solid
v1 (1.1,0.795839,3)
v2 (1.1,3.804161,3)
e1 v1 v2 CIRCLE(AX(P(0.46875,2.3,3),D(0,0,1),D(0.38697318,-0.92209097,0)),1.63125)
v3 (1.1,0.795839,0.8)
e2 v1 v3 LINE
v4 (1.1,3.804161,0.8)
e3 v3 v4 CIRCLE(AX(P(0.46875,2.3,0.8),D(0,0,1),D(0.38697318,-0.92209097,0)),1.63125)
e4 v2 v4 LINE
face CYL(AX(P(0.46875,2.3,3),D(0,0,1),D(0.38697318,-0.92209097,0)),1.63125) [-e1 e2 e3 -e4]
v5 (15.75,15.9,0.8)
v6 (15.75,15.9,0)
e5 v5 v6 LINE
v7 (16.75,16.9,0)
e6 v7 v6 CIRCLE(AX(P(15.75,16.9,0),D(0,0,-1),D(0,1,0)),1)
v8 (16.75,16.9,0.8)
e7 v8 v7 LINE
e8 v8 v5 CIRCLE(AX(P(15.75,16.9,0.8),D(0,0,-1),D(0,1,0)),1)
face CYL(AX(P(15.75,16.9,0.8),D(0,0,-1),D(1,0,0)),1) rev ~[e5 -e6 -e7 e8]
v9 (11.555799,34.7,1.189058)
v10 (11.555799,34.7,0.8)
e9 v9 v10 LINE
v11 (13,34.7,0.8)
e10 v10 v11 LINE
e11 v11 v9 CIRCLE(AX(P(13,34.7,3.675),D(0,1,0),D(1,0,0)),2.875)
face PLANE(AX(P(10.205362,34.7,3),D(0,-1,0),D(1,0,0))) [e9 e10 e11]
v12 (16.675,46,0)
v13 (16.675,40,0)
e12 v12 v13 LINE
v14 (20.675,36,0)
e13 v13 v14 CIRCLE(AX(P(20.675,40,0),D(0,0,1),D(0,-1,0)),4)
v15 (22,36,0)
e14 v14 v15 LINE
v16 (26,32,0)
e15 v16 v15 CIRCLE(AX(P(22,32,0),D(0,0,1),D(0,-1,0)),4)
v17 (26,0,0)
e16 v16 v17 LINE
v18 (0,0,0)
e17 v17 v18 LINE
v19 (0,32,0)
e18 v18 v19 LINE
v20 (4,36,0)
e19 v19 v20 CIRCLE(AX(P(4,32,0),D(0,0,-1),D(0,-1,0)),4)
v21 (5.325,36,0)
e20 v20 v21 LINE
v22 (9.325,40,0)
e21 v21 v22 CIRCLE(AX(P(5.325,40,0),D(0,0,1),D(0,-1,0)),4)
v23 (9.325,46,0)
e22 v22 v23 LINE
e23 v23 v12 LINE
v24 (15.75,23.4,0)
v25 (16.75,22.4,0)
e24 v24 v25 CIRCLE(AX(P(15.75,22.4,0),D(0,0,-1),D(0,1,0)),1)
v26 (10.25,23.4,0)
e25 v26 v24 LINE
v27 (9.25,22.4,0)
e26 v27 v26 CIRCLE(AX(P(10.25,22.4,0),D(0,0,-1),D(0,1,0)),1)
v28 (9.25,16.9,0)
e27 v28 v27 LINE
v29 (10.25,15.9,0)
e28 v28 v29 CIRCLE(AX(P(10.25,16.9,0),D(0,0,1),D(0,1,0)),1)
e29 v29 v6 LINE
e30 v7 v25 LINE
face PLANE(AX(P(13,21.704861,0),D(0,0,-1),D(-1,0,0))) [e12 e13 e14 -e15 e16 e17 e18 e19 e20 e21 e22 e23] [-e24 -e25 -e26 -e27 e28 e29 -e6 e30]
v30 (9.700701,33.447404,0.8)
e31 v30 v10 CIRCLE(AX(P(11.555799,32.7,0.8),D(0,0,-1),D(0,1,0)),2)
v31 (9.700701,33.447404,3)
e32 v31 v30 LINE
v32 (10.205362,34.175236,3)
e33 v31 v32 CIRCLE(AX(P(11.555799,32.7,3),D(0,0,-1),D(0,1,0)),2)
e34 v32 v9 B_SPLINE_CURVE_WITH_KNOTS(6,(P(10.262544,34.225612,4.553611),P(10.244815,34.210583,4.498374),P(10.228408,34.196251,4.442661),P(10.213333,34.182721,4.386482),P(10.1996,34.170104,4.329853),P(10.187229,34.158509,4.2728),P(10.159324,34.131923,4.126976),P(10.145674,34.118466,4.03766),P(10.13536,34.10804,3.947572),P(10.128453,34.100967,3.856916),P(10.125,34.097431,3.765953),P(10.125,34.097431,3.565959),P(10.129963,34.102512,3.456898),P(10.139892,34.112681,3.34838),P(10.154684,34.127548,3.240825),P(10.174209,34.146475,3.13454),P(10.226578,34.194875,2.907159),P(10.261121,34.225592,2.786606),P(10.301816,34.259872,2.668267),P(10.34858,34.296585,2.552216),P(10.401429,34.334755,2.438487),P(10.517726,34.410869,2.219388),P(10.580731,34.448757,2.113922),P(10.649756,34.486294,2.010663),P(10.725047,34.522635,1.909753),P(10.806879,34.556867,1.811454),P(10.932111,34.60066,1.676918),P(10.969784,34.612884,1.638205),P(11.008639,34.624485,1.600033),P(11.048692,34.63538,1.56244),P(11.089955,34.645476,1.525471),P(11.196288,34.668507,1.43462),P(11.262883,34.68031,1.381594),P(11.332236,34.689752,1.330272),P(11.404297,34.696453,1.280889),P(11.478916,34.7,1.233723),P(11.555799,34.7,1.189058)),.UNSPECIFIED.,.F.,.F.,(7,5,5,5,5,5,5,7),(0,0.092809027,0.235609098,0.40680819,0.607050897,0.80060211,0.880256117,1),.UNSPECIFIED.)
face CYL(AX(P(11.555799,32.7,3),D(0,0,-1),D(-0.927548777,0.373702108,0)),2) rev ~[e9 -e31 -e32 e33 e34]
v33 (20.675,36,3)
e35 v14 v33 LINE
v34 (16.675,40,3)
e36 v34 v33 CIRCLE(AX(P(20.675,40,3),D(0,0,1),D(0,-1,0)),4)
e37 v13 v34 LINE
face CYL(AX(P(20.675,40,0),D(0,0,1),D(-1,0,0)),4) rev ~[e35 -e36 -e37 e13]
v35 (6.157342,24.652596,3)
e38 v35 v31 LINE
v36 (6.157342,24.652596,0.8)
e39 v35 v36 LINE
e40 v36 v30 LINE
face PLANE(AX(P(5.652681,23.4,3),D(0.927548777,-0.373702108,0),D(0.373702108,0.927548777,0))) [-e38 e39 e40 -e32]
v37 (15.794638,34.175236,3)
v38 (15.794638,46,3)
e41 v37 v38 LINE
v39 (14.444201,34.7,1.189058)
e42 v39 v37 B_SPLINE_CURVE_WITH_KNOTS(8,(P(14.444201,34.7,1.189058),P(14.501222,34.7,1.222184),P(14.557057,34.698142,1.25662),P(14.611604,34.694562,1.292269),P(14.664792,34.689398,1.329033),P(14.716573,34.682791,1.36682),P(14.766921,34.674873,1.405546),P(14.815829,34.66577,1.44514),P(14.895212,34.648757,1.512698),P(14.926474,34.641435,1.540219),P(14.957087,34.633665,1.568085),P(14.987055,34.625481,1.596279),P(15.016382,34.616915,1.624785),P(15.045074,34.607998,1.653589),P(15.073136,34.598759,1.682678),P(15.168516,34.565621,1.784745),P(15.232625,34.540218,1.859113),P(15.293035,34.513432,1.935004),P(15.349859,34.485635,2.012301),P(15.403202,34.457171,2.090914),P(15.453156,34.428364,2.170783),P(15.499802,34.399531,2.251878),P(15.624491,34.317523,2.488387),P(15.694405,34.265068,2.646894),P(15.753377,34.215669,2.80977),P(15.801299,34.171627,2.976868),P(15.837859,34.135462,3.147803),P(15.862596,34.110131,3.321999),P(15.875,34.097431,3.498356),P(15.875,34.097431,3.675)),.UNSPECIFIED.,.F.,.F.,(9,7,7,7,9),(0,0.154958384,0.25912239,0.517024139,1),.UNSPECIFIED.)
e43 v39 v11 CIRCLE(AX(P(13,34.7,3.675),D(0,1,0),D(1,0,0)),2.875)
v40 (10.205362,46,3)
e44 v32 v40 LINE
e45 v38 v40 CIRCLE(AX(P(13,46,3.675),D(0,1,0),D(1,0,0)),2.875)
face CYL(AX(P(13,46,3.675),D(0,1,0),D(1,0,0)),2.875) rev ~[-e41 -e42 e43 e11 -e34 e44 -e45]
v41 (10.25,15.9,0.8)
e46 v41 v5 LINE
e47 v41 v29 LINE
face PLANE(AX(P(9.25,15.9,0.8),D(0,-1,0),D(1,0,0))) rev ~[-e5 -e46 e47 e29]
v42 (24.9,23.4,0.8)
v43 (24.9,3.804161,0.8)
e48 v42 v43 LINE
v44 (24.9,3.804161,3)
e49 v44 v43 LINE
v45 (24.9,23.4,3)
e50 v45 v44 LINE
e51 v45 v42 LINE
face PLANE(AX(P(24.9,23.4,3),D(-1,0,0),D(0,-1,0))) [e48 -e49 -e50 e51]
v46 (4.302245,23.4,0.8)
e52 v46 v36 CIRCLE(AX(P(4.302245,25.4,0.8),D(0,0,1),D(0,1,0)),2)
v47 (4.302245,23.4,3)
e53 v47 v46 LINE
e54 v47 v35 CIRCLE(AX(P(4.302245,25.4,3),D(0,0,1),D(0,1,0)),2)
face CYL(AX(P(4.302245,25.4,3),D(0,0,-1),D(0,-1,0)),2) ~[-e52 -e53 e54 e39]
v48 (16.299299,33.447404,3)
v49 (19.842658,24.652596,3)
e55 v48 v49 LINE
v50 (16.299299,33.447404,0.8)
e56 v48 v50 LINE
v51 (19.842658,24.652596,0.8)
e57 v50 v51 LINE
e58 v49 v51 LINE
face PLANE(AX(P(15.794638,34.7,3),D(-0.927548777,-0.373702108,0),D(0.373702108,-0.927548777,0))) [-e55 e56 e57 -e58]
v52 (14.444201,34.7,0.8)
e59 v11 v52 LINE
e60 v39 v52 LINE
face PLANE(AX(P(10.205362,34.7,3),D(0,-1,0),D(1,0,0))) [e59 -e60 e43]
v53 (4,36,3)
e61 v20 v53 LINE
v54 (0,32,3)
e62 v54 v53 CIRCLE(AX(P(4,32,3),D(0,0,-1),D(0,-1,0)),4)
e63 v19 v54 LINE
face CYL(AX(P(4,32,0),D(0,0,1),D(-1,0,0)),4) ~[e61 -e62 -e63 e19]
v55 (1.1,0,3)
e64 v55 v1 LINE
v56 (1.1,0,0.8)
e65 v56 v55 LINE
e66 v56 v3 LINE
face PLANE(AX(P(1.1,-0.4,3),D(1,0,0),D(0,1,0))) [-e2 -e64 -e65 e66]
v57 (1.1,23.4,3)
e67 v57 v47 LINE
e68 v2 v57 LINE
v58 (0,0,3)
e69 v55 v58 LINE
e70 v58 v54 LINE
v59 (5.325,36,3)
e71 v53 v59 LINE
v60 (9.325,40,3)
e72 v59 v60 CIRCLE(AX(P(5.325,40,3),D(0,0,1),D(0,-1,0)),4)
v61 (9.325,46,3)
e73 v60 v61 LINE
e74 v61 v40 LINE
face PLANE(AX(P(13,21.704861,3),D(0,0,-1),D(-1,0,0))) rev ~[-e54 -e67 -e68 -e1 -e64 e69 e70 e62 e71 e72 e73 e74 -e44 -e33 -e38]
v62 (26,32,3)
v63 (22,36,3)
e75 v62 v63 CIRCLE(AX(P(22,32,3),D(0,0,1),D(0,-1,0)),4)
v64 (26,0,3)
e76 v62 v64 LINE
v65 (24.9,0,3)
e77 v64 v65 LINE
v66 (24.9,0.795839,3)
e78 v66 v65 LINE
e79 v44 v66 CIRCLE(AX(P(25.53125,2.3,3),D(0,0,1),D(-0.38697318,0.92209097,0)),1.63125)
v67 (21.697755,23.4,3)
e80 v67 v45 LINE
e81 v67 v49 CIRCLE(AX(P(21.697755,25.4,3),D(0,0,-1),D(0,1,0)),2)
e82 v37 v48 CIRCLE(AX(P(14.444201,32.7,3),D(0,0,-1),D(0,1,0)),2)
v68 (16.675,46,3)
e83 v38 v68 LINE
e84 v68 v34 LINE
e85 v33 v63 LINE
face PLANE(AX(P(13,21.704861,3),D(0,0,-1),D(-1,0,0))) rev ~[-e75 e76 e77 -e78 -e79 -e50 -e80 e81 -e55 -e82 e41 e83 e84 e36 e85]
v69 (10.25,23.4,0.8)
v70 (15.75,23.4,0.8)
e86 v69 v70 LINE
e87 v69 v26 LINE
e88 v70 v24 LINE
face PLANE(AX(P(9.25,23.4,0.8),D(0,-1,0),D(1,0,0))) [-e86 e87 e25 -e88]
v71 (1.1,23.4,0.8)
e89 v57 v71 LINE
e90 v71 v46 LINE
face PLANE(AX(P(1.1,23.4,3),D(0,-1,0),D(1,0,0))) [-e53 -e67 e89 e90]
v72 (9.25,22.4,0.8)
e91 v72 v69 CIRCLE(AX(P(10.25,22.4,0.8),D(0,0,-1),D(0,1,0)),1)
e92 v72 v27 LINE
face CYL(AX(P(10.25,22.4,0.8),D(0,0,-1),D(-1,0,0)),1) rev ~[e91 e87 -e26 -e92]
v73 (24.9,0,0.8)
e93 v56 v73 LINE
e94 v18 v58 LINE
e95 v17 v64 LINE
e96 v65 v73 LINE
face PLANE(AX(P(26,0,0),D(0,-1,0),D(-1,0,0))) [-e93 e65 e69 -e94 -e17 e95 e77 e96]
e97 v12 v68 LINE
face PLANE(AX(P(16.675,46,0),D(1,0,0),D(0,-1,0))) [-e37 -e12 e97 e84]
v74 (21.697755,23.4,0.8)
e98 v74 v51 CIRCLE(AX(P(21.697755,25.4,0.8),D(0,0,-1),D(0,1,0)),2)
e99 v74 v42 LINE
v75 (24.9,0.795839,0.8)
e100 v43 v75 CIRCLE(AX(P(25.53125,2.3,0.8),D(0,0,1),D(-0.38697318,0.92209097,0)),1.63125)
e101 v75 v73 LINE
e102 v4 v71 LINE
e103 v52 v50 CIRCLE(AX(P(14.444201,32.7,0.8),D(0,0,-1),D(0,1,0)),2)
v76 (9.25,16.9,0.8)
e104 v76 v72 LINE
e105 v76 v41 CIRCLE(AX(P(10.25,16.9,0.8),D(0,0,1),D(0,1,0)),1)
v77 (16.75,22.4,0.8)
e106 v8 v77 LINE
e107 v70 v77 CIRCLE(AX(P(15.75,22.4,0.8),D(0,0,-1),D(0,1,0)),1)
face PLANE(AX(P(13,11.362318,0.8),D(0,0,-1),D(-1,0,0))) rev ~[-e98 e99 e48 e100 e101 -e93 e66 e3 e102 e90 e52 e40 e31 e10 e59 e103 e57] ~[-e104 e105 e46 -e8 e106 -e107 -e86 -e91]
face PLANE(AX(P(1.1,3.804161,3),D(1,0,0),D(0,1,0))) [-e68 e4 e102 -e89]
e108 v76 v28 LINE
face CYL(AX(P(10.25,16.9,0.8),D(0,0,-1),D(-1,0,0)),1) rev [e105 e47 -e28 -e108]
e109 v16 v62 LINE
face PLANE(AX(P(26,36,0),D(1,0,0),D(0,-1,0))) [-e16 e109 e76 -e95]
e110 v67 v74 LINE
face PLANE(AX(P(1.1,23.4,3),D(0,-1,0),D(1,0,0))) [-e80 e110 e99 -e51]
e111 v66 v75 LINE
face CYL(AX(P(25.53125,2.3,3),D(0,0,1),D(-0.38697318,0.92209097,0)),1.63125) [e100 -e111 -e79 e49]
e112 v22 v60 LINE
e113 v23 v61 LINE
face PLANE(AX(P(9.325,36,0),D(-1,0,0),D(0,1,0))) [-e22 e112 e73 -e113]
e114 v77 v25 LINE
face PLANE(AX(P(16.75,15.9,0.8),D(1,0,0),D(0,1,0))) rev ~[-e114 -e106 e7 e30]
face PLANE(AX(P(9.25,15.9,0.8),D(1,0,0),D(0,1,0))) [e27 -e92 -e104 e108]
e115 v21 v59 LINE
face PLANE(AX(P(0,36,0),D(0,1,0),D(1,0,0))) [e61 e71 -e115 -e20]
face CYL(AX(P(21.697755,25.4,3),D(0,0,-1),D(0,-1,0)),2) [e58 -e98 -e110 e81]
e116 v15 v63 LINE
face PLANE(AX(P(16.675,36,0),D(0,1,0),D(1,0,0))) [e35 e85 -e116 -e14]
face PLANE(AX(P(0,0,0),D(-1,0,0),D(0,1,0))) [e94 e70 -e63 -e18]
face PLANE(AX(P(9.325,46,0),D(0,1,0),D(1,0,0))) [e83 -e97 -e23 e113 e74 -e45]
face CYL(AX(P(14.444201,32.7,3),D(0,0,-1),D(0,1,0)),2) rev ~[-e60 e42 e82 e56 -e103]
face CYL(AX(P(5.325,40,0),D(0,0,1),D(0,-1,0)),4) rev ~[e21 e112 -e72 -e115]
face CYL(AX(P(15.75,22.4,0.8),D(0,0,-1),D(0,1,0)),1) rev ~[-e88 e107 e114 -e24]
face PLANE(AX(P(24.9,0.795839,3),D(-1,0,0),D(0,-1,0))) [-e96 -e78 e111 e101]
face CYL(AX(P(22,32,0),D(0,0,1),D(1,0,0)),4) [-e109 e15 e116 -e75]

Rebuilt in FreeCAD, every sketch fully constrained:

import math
import FreeCAD as App
import Part
import Sketcher
Q = App.Units.Quantity


def edges_at(feature, points):
    """Names of the edges that pass closest to the given points."""
    edges = feature.Shape.Edges
    near = lambda p: min(range(len(edges)), key=lambda i: edges[i].distToShape(Part.Vertex(*p))[0])
    return sorted({f"Edge{near(p) + 1}" for p in points})

doc = App.newDocument("Part")
body = doc.addObject("PartDesign::Body", "Body")

sketch1 = body.newObject("Sketcher::SketchObject", "Sketch")
sketch1.AttachmentSupport = (doc.getObject("XY_Plane"), [""])
sketch1.MapMode = "FlatFace"
sketch1.addGeometry([
    Part.LineSegment(App.Vector(9, 36, 0), App.Vector(0, 36, 0)),
    Part.LineSegment(App.Vector(0, 36, 0), App.Vector(0, 0, 0)),
    Part.LineSegment(App.Vector(0, 0, 0), App.Vector(26, 0, 0)),
    Part.LineSegment(App.Vector(26, 0, 0), App.Vector(26, 36, 0)),
    Part.LineSegment(App.Vector(26, 36, 0), App.Vector(17, 36, 0)),
    Part.LineSegment(App.Vector(17, 36, 0), App.Vector(17, 46, 0)),
    Part.LineSegment(App.Vector(17, 46, 0), App.Vector(9, 46, 0)),
    Part.LineSegment(App.Vector(9, 46, 0), App.Vector(9, 36, 0)),
], False)
sketch1.addConstraint([
    Sketcher.Constraint("Coincident", 0, 2, 1, 1),
    Sketcher.Constraint("Coincident", 1, 2, 2, 1),
    Sketcher.Constraint("Coincident", 2, 2, 3, 1),
    Sketcher.Constraint("Coincident", 3, 2, 4, 1),
    Sketcher.Constraint("Coincident", 4, 2, 5, 1),
    Sketcher.Constraint("Coincident", 5, 2, 6, 1),
    Sketcher.Constraint("Coincident", 6, 2, 7, 1),
    Sketcher.Constraint("Coincident", 7, 2, 0, 1),
    Sketcher.Constraint("Horizontal", 0),
    Sketcher.Constraint("Vertical", 1),
    Sketcher.Constraint("Horizontal", 2),
    Sketcher.Constraint("Vertical", 3),
    Sketcher.Constraint("Horizontal", 4),
    Sketcher.Constraint("Vertical", 5),
    Sketcher.Constraint("Horizontal", 6),
    Sketcher.Constraint("Vertical", 7),
    Sketcher.Constraint("Coincident", 1, 2, -1, 1),
    Sketcher.Constraint("Horizontal", 0, 2, 3, 2),
    Sketcher.Constraint("Equal", 0, 4),
    Sketcher.Constraint("DistanceX", 2, 1, 2, 2, Q("26 mm")),
    Sketcher.Constraint("DistanceY", 1, 2, 1, 1, Q("36 mm")),
    Sketcher.Constraint("DistanceY", 5, 1, 5, 2, Q("10 mm")),
    Sketcher.Constraint("DistanceX", 6, 2, 6, 1, Q("7.35 mm")),
])
pad1 = body.newObject("PartDesign::Pad", "Pad")
pad1.Profile = sketch1
pad1.Length = 3

sketch2 = body.newObject("Sketcher::SketchObject", "Sketch001")
sketch2.AttachmentSupport = (doc.getObject("XY_Plane"), [""])
sketch2.MapMode = "FlatFace"
sketch2.AttachmentOffset = App.Placement(App.Vector(0, 0, 3), App.Rotation())
sketch2.addGeometry([
    Part.LineSegment(App.Vector(1.1, 0.8, 0), App.Vector(1.1, -0.4, 0)),
    Part.LineSegment(App.Vector(1.1, -0.4, 0), App.Vector(24.9, -0.4, 0)),
    Part.LineSegment(App.Vector(24.9, -0.4, 0), App.Vector(24.9, 0.8, 0)),
    Part.ArcOfCircle(Part.Circle(App.Vector(25.5, 2.3, 0), App.Vector(0, 0, 1), 1.6), math.radians(113), math.radians(247)),
    Part.LineSegment(App.Vector(24.9, 3.8, 0), App.Vector(24.9, 23.4, 0)),
    Part.LineSegment(App.Vector(24.9, 23.4, 0), App.Vector(1.1, 23.4, 0)),
    Part.LineSegment(App.Vector(1.1, 23.4, 0), App.Vector(1.1, 3.8, 0)),
    Part.ArcOfCircle(Part.Circle(App.Vector(0.5, 2.3, 0), App.Vector(0, 0, 1), 1.6), math.radians(-67), math.radians(67)),
], False)
sketch2.addConstraint([
    Sketcher.Constraint("Coincident", 0, 2, 1, 1),
    Sketcher.Constraint("Coincident", 1, 2, 2, 1),
    Sketcher.Constraint("Coincident", 2, 2, 3, 2),
    Sketcher.Constraint("Coincident", 3, 1, 4, 1),
    Sketcher.Constraint("Coincident", 4, 2, 5, 1),
    Sketcher.Constraint("Coincident", 5, 2, 6, 1),
    Sketcher.Constraint("Coincident", 6, 2, 7, 2),
    Sketcher.Constraint("Coincident", 7, 1, 0, 1),
    Sketcher.Constraint("Vertical", 0),
    Sketcher.Constraint("Horizontal", 1),
    Sketcher.Constraint("Vertical", 2),
    Sketcher.Constraint("Vertical", 4),
    Sketcher.Constraint("Horizontal", 5),
    Sketcher.Constraint("Vertical", 6),
    Sketcher.Constraint("Equal", 3, 7),
    Sketcher.Constraint("Horizontal", 3, 3, 7, 3),
    Sketcher.Constraint("Horizontal", 3, 1, 6, 2),
    Sketcher.Constraint("Horizontal", 2, 2, 7, 1),
    Sketcher.Constraint("Vertical", 2, 2, 3, 1),
    Sketcher.Constraint("DistanceX", 1, 1, 1, 2, Q("23.8 mm")),
    Sketcher.Constraint("DistanceY", -1, 1, 3, 3, Q("2.3 mm")),
    Sketcher.Constraint("DistanceX", -1, 1, 0, 2, Q("1.1 mm")),
    Sketcher.Constraint("DistanceY", 0, 2, -1, 1, Q("0.4 mm")),
    Sketcher.Constraint("DistanceY", -1, 1, 4, 2, Q("23.4 mm")),
    Sketcher.Constraint("Radius", 3, Q("1.63125 mm")),
    Sketcher.Constraint("DistanceY", 0, 2, 0, 1, Q("1.195839 mm")),
])
pocket1 = body.newObject("PartDesign::Pocket", "Pocket")
pocket1.Profile = sketch2
pocket1.Length = 2.2

sketch3 = body.newObject("Sketcher::SketchObject", "Sketch002")
sketch3.AttachmentSupport = (doc.getObject("XZ_Plane"), [""])
sketch3.MapMode = "FlatFace"
sketch3.AttachmentOffset = App.Placement(App.Vector(0, 0, -46), App.Rotation())
sketch3.addGeometry(Part.Circle(App.Vector(13, 3.7, 0), App.Vector(0, 0, 1), 2.9), False)
sketch3.addConstraint([
    Sketcher.Constraint("Diameter", 0, Q("5.75 mm")),
    Sketcher.Constraint("DistanceX", -1, 1, 0, 3, Q("13 mm")),
    Sketcher.Constraint("DistanceY", -1, 1, 0, 3, Q("3.675 mm")),
])
pocket2 = body.newObject("PartDesign::Pocket", "Pocket001")
pocket2.Profile = sketch3
pocket2.Length = 22.6
pocket2.Reversed = True

sketch4 = body.newObject("Sketcher::SketchObject", "Sketch003")
sketch4.AttachmentSupport = (doc.getObject("XY_Plane"), [""])
sketch4.MapMode = "FlatFace"
sketch4.AttachmentOffset = App.Placement(App.Vector(0, 0, 3), App.Rotation())
sketch4.addGeometry([
    Part.LineSegment(App.Vector(10, 35, 0), App.Vector(6, 23, 0)),
    Part.LineSegment(App.Vector(6, 23, 0), App.Vector(20, 23, 0)),
    Part.LineSegment(App.Vector(20, 23, 0), App.Vector(16, 35, 0)),
    Part.LineSegment(App.Vector(16, 35, 0), App.Vector(10, 35, 0)),
], False)
sketch4.addConstraint([
    Sketcher.Constraint("Coincident", 0, 2, 1, 1),
    Sketcher.Constraint("Coincident", 1, 2, 2, 1),
    Sketcher.Constraint("Coincident", 2, 2, 3, 1),
    Sketcher.Constraint("Coincident", 3, 2, 0, 1),
    Sketcher.Constraint("Horizontal", 1),
    Sketcher.Constraint("Horizontal", 3),
    Sketcher.Constraint("Equal", 0, 2),
    Sketcher.Constraint("DistanceY", -1, 1, 0, 2, Q("23.4 mm")),
    Sketcher.Constraint("DistanceY", -1, 1, 2, 2, Q("34.7 mm")),
    Sketcher.Constraint("DistanceX", 1, 1, 1, 2, Q("14.694638 mm")),
    Sketcher.Constraint("DistanceX", 3, 2, 3, 1, Q("5.589275 mm")),
    Sketcher.Constraint("DistanceX", -1, 1, 0, 2, Q("5.652681 mm")),
])
pocket3 = body.newObject("PartDesign::Pocket", "Pocket002")
pocket3.Profile = sketch4
pocket3.Length = 2.2
doc.recompute()

fillet = body.newObject("PartDesign::Fillet", "Fillet")
fillet.Base = (pocket3, edges_at(pocket3, [
    (10.205, 34.7, 1.9),
    (20.347, 23.4, 1.9),
    (15.795, 34.7, 1.9),
    (5.653, 23.4, 1.9),
]))
fillet.Radius = 2
doc.recompute()

fillet2 = body.newObject("PartDesign::Fillet", "Fillet001")
fillet2.Base = (fillet, edges_at(fillet, [(0, 36, 1.5), (26, 36, 1.5)]))
fillet2.Radius = 4
doc.recompute()

fillet3 = body.newObject("PartDesign::Fillet", "Fillet002")
fillet3.Base = (fillet2, edges_at(fillet2, [(9.325, 36, 1.5), (16.675, 36, 1.5)]))
fillet3.Radius = 4

sketch5 = body.newObject("Sketcher::SketchObject", "Sketch004")
sketch5.AttachmentSupport = (doc.getObject("XY_Plane"), [""])
sketch5.MapMode = "FlatFace"
sketch5.AttachmentOffset = App.Placement(App.Vector(0, 0, 0.8), App.Rotation())
sketch5.addGeometry([
    Part.LineSegment(App.Vector(9, 23, 0), App.Vector(9, 16, 0)),
    Part.LineSegment(App.Vector(9, 16, 0), App.Vector(17, 16, 0)),
    Part.LineSegment(App.Vector(17, 16, 0), App.Vector(17, 23, 0)),
    Part.LineSegment(App.Vector(17, 23, 0), App.Vector(9, 23, 0)),
], False)
sketch5.addConstraint([
    Sketcher.Constraint("Coincident", 0, 2, 1, 1),
    Sketcher.Constraint("Coincident", 1, 2, 2, 1),
    Sketcher.Constraint("Coincident", 2, 2, 3, 1),
    Sketcher.Constraint("Coincident", 3, 2, 0, 1),
    Sketcher.Constraint("Vertical", 0),
    Sketcher.Constraint("Horizontal", 1),
    Sketcher.Constraint("Vertical", 2),
    Sketcher.Constraint("Horizontal", 3),
    Sketcher.Constraint("Equal", 3, 0),
    Sketcher.Constraint("DistanceX", 1, 1, 1, 2, Q("7.5 mm")),
    Sketcher.Constraint("DistanceY", -1, 1, 0, 2, Q("15.9 mm")),
    Sketcher.Constraint("DistanceX", -1, 1, 0, 2, Q("9.25 mm")),
])
pocket4 = body.newObject("PartDesign::Pocket", "Pocket003")
pocket4.Profile = sketch5
pocket4.Length = 0.8
doc.recompute()

fillet4 = body.newObject("PartDesign::Fillet", "Fillet003")
fillet4.Base = (pocket4, edges_at(pocket4, [
    (16.75, 15.9, 0.4),
    (16.75, 23.4, 0.4),
    (9.25, 23.4, 0.4),
    (9.25, 15.9, 0.4),
]))
fillet4.Radius = 1

doc.recompute()
